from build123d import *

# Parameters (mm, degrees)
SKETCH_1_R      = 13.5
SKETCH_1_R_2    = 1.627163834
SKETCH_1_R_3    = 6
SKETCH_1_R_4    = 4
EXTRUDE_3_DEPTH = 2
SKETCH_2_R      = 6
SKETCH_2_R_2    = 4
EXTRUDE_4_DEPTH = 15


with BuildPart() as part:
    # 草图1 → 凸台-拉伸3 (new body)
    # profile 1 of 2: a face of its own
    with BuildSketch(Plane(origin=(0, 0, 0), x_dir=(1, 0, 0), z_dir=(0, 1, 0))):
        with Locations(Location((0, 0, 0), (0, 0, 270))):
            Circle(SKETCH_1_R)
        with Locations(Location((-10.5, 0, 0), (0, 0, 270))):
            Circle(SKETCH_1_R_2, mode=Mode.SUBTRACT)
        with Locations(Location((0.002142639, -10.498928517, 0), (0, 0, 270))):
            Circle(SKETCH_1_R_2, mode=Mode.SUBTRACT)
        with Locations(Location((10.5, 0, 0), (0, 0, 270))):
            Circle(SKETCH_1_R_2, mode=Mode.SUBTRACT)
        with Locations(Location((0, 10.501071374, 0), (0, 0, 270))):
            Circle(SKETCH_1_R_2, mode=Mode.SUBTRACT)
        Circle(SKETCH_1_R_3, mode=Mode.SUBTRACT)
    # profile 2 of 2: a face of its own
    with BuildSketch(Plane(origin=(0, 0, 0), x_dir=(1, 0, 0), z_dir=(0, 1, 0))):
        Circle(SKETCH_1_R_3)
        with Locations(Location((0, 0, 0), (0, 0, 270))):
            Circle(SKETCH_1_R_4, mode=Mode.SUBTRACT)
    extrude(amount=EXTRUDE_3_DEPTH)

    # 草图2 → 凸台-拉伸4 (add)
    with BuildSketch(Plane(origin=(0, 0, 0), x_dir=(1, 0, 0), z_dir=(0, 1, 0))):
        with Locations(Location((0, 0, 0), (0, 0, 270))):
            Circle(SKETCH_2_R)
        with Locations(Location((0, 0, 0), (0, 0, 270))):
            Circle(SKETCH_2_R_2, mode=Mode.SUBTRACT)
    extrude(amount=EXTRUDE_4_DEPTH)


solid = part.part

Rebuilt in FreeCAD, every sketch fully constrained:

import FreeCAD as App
import Part
import Sketcher

V = App.Vector

doc = App.newDocument("Part")
body = doc.addObject("PartDesign::Body", "Body")

sketch1 = body.newObject("Sketcher::SketchObject", "Sketch")
sketch1.AttachmentSupport = (doc.getObject("XZ_Plane"), [""])
sketch1.MapMode = "FlatFace"
sketch1.addGeometry(Part.Circle(V(0, 0, 0), V(0, 0, 1), 13.5), False)
sketch1.addGeometry(Part.Circle(V(0, -10.5, 0), V(0, 0, 1), 1.6), False)
sketch1.addGeometry(Part.Circle(V(-10.5, 0, 0), V(0, 0, 1), 1.6), False)
sketch1.addGeometry(Part.Circle(V(0, 10.5, 0), V(0, 0, 1), 1.6), False)
sketch1.addGeometry(Part.Circle(V(10.5, 0, 0), V(0, 0, 1), 1.6), False)
sketch1.addGeometry(Part.Circle(V(0, 0, 0), V(0, 0, 1), 4), False)
sketch1.addConstraint(Sketcher.Constraint("Coincident", 0, 3, -1, 1))
sketch1.addConstraint(Sketcher.Constraint("Coincident", 5, 3, -1, 1))
sketch1.addConstraint(Sketcher.Constraint("Equal", 1, 2))
sketch1.addConstraint(Sketcher.Constraint("Equal", 2, 3))
sketch1.addConstraint(Sketcher.Constraint("Equal", 3, 4))
sketch1.addConstraint(Sketcher.Constraint("Symmetric", 2, 3, 4, 3, -1, 1))
sketch1.addConstraint(Sketcher.Constraint("PointOnObject", 1, 3, -2))
sketch1.addConstraint(Sketcher.Constraint("PointOnObject", 2, 3, -1))
sketch1.addConstraint(Sketcher.Constraint("Diameter", 0, 27.0))
sketch1.addConstraint(Sketcher.Constraint("Diameter", 5, 8.0))
sketch1.addConstraint(Sketcher.Constraint("DistanceY", 1, 3, 3, 3, 21.0))
sketch1.addConstraint(Sketcher.Constraint("DistanceX", 2, 3, 4, 3, 21.0))
sketch1.addConstraint(Sketcher.Constraint("Diameter", 1, 3.254328))
sketch1.addConstraint(Sketcher.Constraint("DistanceY", 1, 3, -1, 1, 10.501071))
sketch1.addConstraint(Sketcher.Constraint("DistanceX", -1, 1, 3, 3, 0.002143))
pad1 = body.newObject("PartDesign::Pad", "Pad")
pad1.Profile = sketch1
pad1.Length = 2
pad1.Reversed = True

sketch2 = body.newObject("Sketcher::SketchObject", "Sketch001")
sketch2.AttachmentSupport = (doc.getObject("XZ_Plane"), [""])
sketch2.MapMode = "FlatFace"
sketch2.addGeometry(Part.Circle(V(0, 0, 0), V(0, 0, 1), 6), False)
sketch2.addGeometry(Part.Circle(V(0, 0, 0), V(0, 0, 1), 4), False)
sketch2.addConstraint(Sketcher.Constraint("Coincident", 0, 3, -1, 1))
sketch2.addConstraint(Sketcher.Constraint("Coincident", 1, 3, -1, 1))
sketch2.addConstraint(Sketcher.Constraint("Diameter", 0, 12.0))
sketch2.addConstraint(Sketcher.Constraint("Diameter", 1, 8.0))
pad2 = body.newObject("PartDesign::Pad", "Pad001")
pad2.Profile = sketch2
pad2.Length = 15
pad2.Reversed = True

doc.recompute()
